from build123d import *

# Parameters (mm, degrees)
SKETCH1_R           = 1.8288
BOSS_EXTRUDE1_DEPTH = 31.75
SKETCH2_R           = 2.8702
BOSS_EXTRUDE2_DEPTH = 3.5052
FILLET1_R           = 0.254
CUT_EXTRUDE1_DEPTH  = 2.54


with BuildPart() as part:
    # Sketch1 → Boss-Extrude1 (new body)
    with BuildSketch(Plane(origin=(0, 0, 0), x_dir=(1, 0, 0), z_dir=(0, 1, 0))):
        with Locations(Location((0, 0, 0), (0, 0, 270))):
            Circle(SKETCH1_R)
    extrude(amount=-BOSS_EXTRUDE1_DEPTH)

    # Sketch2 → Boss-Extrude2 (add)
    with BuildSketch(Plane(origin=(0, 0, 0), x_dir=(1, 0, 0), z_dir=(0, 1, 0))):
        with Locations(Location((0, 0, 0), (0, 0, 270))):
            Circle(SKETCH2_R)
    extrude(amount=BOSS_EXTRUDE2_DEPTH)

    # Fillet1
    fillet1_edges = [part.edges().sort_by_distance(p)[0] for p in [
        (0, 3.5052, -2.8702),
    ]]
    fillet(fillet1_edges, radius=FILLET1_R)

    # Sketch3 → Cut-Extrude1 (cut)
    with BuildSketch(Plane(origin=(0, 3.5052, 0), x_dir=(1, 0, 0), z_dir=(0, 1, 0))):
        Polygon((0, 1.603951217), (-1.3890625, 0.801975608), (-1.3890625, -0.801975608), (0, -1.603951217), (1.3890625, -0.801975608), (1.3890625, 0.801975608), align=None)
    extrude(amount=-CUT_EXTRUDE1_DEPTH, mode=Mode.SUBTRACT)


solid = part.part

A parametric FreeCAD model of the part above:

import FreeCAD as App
import Part
import Sketcher

V = App.Vector
Q = App.Units.Quantity


def edges_at(feature, points):
    """Names of the edges that pass closest to the given points."""
    edges = feature.Shape.Edges
    near = lambda p: min(range(len(edges)), key=lambda i: edges[i].distToShape(Part.Vertex(*p))[0])
    return sorted({f"Edge{near(p) + 1}" for p in points})

doc = App.newDocument("Part")
body = doc.addObject("PartDesign::Body", "Body")

# Sketch on XZ plane
sketch1 = body.newObject("Sketcher::SketchObject", "Sketch")
sketch1.AttachmentSupport = (doc.getObject("XZ_Plane"), [""])
sketch1.MapMode = "FlatFace"
sketch1.addGeometry(Part.Circle(V(0, 0, 0), V(0, 0, 1), 1.8), False)
sketch1.addConstraint([
    Sketcher.Constraint("Coincident", 0, 3, -1, 1),
    Sketcher.Constraint("Diameter", 0, Q("0.144 in")),
])
pad1 = body.newObject("PartDesign::Pad", "Pad")
pad1.Profile = sketch1
pad1.Length = Q("1.25 in")

# Sketch on XZ plane
sketch2 = body.newObject("Sketcher::SketchObject", "Sketch001")
sketch2.AttachmentSupport = (doc.getObject("XZ_Plane"), [""])
sketch2.MapMode = "FlatFace"
sketch2.addGeometry(Part.Circle(V(0, 0, 0), V(0, 0, 1), 2.9), False)
sketch2.addConstraint([
    Sketcher.Constraint("Coincident", 0, 3, -1, 1),
    Sketcher.Constraint("Diameter", 0, Q("0.226 in")),
])
pad2 = body.newObject("PartDesign::Pad", "Pad001")
pad2.Profile = sketch2
pad2.Length = Q("0.138 in")
pad2.Reversed = True
doc.recompute()

fillet = body.newObject("PartDesign::Fillet", "Fillet")
fillet.Base = (pad2, edges_at(pad2, [(0, 3.505, -2.87)]))
fillet.Radius = Q("0.01 in")

# Sketch on XZ plane
sketch3 = body.newObject("Sketcher::SketchObject", "Sketch002")
sketch3.AttachmentSupport = (doc.getObject("XZ_Plane"), [""])
sketch3.MapMode = "FlatFace"
sketch3.AttachmentOffset = App.Placement(V(0, 0, -0.138 * 25.4), App.Rotation())
sketch3.addGeometry([
    Part.LineSegment(V(0, -1.6, 0), V(-1.4, -0.8, 0)),  # 0
    Part.LineSegment(V(-1.4, -0.8, 0), V(-1.4, 0.8, 0)),  # 1
    Part.LineSegment(V(-1.4, 0.8, 0), V(0, 1.6, 0)),  # 2
    Part.LineSegment(V(0, 1.6, 0), V(1.4, 0.8, 0)),  # 3
    Part.LineSegment(V(1.4, 0.8, 0), V(1.4, -0.8, 0)),  # 4
    Part.LineSegment(V(1.4, -0.8, 0), V(0, -1.6, 0)),  # 5
], False)
sketch3.addConstraint([
    Sketcher.Constraint("Coincident", 0, 2, 1, 1),
    Sketcher.Constraint("Coincident", 1, 2, 2, 1),
    Sketcher.Constraint("Coincident", 2, 2, 3, 1),
    Sketcher.Constraint("Coincident", 3, 2, 4, 1),
    Sketcher.Constraint("Coincident", 4, 2, 5, 1),
    Sketcher.Constraint("Coincident", 5, 2, 0, 1),
    Sketcher.Constraint("Vertical", 1),
    Sketcher.Constraint("Vertical", 4),
    Sketcher.Constraint("Symmetric", 0, 2, 3, 2, -1, 1),
    Sketcher.Constraint("Symmetric", 2, 2, 5, 2, -1, 1),
    Sketcher.Constraint("PointOnObject", 2, 2, -2),
    Sketcher.Constraint("Parallel", 2, 5),
    Sketcher.Constraint("Horizontal", 1, 2, 3, 2),
    Sketcher.Constraint("Angle", 0, Q("150 deg")),
    Sketcher.Constraint("DistanceX", 1, 2, 3, 2, Q("0.109375 in")),
    Sketcher.Constraint("DistanceY", 1, 1, 1, 2, Q("1.603951 mm")),
])
pocket1 = body.newObject("PartDesign::Pocket", "Pocket")
pocket1.Profile = sketch3
pocket1.Length = Q("0.1 in")
pocket1.Reversed = True

doc.recompute()
